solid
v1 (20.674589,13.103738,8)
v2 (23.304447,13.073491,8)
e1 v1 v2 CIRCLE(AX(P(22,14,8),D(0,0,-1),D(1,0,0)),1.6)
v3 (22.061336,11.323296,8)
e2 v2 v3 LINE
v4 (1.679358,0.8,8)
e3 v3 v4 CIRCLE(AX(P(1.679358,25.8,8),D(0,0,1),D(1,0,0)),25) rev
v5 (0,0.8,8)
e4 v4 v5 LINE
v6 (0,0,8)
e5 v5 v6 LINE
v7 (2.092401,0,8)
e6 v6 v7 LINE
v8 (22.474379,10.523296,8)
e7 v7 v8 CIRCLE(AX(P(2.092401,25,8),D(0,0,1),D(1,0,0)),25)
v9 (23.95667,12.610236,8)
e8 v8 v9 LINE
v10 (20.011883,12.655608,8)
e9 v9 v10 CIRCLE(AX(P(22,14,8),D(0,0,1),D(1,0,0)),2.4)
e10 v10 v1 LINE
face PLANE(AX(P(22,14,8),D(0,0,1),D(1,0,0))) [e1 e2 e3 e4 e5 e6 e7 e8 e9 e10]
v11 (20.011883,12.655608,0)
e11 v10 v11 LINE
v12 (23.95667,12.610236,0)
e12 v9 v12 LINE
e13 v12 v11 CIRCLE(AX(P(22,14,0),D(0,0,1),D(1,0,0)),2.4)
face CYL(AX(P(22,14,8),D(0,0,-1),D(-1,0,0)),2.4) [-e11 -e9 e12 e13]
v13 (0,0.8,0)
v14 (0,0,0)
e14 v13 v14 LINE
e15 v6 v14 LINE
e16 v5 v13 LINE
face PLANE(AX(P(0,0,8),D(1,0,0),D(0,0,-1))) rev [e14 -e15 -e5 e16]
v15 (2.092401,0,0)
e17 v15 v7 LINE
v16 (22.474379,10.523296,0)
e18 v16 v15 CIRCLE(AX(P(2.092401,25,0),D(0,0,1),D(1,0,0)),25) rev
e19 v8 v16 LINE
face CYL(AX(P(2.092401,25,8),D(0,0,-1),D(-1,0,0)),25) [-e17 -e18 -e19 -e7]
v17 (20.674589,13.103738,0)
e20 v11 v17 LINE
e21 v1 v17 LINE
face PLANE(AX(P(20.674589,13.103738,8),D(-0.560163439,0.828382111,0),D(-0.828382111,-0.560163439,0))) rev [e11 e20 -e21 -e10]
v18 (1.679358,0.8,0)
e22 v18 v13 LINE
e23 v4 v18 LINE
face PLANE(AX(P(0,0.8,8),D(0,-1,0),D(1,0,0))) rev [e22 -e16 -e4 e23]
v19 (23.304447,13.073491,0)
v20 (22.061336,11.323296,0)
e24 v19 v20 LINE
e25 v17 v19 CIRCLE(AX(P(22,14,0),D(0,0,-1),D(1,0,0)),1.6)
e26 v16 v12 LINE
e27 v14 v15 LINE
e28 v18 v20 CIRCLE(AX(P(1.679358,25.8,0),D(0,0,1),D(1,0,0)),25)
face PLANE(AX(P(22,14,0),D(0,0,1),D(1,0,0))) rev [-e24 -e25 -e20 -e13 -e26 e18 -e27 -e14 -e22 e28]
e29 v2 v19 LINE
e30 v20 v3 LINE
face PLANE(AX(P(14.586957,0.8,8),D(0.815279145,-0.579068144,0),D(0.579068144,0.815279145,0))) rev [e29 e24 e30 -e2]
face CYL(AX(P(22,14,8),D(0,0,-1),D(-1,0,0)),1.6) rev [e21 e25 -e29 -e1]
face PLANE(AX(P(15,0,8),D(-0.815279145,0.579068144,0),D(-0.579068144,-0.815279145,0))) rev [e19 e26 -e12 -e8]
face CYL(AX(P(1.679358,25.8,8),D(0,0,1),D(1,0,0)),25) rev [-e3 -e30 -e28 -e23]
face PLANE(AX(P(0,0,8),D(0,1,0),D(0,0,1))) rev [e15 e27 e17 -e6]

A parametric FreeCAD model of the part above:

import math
import FreeCAD as App
import Part
import Sketcher
Q = App.Units.Quantity


def edges_at(feature, points):
    """Names of the edges that pass closest to the given points."""
    edges = feature.Shape.Edges
    near = lambda p: min(range(len(edges)), key=lambda i: edges[i].distToShape(Part.Vertex(*p))[0])
    return sorted({f"Edge{near(p) + 1}" for p in points})

doc = App.newDocument("Part")
params = doc.addObject("Spreadsheet::Sheet", "Params")
for row, (alias, value) in enumerate([
    ("sketch1_radius", "2.4 mm"),
    ("sketch1_radius2", "1.6 mm"),
    ("sketch1_width", "15 mm"),
    ("sketch1_height", "0.8 mm"),
    ("pad1_length", "8 mm"),
    ("fillet_radius", "25 mm"),
], start=1):
    params.set(f"A{row}", alias)
    params.set(f"B{row}", "=" + value)
    params.setAlias(f"B{row}", alias)

body = doc.addObject("PartDesign::Body", "Body")

sketch1 = body.newObject("Sketcher::SketchObject", "Sketch")
sketch1.AttachmentSupport = (doc.getObject("XY_Plane"), [""])
sketch1.MapMode = "FlatFace"
sketch1.addGeometry([
    Part.LineSegment(App.Vector(0, 0, 0), App.Vector(15, 0, 0)),
    Part.LineSegment(App.Vector(15, 0, 0), App.Vector(24, 12.6, 0)),
    Part.ArcOfCircle(Part.Circle(App.Vector(22, 14, 0), App.Vector(0, 0, 1), 2.4), math.radians(-35), math.radians(214)),
    Part.LineSegment(App.Vector(20, 12.7, 0), App.Vector(20.7, 13.1, 0)),
    Part.ArcOfCircle(Part.Circle(App.Vector(22, 14, 0), App.Vector(0, 0, 1), 1.6), math.radians(-35), math.radians(214)),
    Part.LineSegment(App.Vector(23.3, 13.1, 0), App.Vector(14.6, 0.8, 0)),
    Part.LineSegment(App.Vector(14.6, 0.8, 0), App.Vector(0, 0.8, 0)),
    Part.LineSegment(App.Vector(0, 0.8, 0), App.Vector(0, 0, 0)),
], False)
sketch1.addConstraint([
    Sketcher.Constraint("Coincident", 0, 2, 1, 1),
    Sketcher.Constraint("Tangent", 1, 2, 2, 1),
    Sketcher.Constraint("Coincident", 2, 2, 3, 1),
    Sketcher.Constraint("Coincident", 3, 2, 4, 2),
    Sketcher.Constraint("Tangent", 4, 1, 5, 1),
    Sketcher.Constraint("Coincident", 5, 2, 6, 1),
    Sketcher.Constraint("Coincident", 6, 2, 7, 1),
    Sketcher.Constraint("Coincident", 7, 2, 0, 1),
    Sketcher.Constraint("Horizontal", 0),
    Sketcher.Constraint("Horizontal", 6),
    Sketcher.Constraint("Vertical", 7),
    Sketcher.Constraint("Coincident", 7, 2, -1, 1),
    Sketcher.Constraint("Coincident", 4, 3, 2, 3),
    Sketcher.Constraint("Parallel", 1, 5),
    Sketcher.Constraint("Radius", 2, Q("2.4 mm")),
    Sketcher.Constraint("Radius", 4, Q("1.6 mm")),
    Sketcher.Constraint("DistanceX", 0, 1, 0, 2, Q("15 mm")),
    Sketcher.Constraint("DistanceY", 7, 2, 7, 1, Q("0.8 mm")),
    Sketcher.Constraint("DistanceX", -1, 1, 2, 3, Q("22 mm")),
    Sketcher.Constraint("DistanceY", -1, 1, 2, 3, Q("14 mm")),
    Sketcher.Constraint("DistanceX", -1, 1, 3, 2, Q("20.674589 mm")),
    Sketcher.Constraint("DistanceY", 1, 2, 2, 2, Q("0.045371 mm")),
])
sketch1.setExpression("Constraints[14]", "Params.sketch1_radius")
sketch1.setExpression("Constraints[15]", "Params.sketch1_radius2")
sketch1.setExpression("Constraints[16]", "Params.sketch1_width")
sketch1.setExpression("Constraints[17]", "Params.sketch1_height")
pad1 = body.newObject("PartDesign::Pad", "Pad")
pad1.Profile = sketch1
pad1.setExpression("Length", "Params.pad1_length")
doc.recompute()

fillet = body.newObject("PartDesign::Fillet", "Fillet")
fillet.Base = (pad1, edges_at(pad1, [(14.587, 0.8, 4), (15, 0, 4)]))
fillet.setExpression("Radius", "Params.fillet_radius")

doc.recompute()
